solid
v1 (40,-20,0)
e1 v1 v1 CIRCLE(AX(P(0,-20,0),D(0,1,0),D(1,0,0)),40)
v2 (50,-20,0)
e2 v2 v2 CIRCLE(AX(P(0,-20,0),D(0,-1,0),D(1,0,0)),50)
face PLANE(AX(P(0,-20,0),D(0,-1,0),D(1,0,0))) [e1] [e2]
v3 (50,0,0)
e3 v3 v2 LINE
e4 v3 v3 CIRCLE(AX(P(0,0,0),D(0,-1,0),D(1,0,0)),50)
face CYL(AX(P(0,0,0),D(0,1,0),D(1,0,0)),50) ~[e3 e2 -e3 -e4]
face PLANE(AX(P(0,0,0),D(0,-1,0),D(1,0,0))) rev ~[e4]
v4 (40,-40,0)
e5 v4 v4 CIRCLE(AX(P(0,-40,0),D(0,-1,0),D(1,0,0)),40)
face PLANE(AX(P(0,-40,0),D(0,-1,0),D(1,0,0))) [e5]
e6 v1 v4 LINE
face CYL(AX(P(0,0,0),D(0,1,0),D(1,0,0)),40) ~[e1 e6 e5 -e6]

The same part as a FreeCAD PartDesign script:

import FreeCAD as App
import Part
import Sketcher

V = App.Vector

doc = App.newDocument("Part")
body = doc.addObject("PartDesign::Body", "Body")

sketch1 = doc.addObject("Sketcher::SketchObject", "Sketch")
body.addObject(sketch1)
sketch1.AttachmentSupport = (doc.XZ_Plane, [""])
sketch1.MapMode = "FlatFace"
sketch1.addGeometry(Part.Circle(V(0, 0, 0), V(0, 0, 1), 50), False)
sketch1.addConstraint([
    Sketcher.Constraint("Coincident", 0, 3, -1, 1),
    Sketcher.Constraint("Diameter", 0, 100.0),
])
pad1 = doc.addObject("PartDesign::Pad", "Pad")
body.addObject(pad1)
pad1.Profile = sketch1
pad1.Length = 20

sketch2 = doc.addObject("Sketcher::SketchObject", "Sketch001")
body.addObject(sketch2)
sketch2.AttachmentSupport = (doc.XZ_Plane, [""])
sketch2.MapMode = "FlatFace"
sketch2.addGeometry(Part.Circle(V(0, 0, 0), V(0, 0, 1), 40), False)
sketch2.addConstraint([
    Sketcher.Constraint("Coincident", 0, 3, -1, 1),
    Sketcher.Constraint("Diameter", 0, 80.0),
])
pad2 = doc.addObject("PartDesign::Pad", "Pad001")
body.addObject(pad2)
pad2.Profile = sketch2
pad2.Length = 40

doc.recompute()
